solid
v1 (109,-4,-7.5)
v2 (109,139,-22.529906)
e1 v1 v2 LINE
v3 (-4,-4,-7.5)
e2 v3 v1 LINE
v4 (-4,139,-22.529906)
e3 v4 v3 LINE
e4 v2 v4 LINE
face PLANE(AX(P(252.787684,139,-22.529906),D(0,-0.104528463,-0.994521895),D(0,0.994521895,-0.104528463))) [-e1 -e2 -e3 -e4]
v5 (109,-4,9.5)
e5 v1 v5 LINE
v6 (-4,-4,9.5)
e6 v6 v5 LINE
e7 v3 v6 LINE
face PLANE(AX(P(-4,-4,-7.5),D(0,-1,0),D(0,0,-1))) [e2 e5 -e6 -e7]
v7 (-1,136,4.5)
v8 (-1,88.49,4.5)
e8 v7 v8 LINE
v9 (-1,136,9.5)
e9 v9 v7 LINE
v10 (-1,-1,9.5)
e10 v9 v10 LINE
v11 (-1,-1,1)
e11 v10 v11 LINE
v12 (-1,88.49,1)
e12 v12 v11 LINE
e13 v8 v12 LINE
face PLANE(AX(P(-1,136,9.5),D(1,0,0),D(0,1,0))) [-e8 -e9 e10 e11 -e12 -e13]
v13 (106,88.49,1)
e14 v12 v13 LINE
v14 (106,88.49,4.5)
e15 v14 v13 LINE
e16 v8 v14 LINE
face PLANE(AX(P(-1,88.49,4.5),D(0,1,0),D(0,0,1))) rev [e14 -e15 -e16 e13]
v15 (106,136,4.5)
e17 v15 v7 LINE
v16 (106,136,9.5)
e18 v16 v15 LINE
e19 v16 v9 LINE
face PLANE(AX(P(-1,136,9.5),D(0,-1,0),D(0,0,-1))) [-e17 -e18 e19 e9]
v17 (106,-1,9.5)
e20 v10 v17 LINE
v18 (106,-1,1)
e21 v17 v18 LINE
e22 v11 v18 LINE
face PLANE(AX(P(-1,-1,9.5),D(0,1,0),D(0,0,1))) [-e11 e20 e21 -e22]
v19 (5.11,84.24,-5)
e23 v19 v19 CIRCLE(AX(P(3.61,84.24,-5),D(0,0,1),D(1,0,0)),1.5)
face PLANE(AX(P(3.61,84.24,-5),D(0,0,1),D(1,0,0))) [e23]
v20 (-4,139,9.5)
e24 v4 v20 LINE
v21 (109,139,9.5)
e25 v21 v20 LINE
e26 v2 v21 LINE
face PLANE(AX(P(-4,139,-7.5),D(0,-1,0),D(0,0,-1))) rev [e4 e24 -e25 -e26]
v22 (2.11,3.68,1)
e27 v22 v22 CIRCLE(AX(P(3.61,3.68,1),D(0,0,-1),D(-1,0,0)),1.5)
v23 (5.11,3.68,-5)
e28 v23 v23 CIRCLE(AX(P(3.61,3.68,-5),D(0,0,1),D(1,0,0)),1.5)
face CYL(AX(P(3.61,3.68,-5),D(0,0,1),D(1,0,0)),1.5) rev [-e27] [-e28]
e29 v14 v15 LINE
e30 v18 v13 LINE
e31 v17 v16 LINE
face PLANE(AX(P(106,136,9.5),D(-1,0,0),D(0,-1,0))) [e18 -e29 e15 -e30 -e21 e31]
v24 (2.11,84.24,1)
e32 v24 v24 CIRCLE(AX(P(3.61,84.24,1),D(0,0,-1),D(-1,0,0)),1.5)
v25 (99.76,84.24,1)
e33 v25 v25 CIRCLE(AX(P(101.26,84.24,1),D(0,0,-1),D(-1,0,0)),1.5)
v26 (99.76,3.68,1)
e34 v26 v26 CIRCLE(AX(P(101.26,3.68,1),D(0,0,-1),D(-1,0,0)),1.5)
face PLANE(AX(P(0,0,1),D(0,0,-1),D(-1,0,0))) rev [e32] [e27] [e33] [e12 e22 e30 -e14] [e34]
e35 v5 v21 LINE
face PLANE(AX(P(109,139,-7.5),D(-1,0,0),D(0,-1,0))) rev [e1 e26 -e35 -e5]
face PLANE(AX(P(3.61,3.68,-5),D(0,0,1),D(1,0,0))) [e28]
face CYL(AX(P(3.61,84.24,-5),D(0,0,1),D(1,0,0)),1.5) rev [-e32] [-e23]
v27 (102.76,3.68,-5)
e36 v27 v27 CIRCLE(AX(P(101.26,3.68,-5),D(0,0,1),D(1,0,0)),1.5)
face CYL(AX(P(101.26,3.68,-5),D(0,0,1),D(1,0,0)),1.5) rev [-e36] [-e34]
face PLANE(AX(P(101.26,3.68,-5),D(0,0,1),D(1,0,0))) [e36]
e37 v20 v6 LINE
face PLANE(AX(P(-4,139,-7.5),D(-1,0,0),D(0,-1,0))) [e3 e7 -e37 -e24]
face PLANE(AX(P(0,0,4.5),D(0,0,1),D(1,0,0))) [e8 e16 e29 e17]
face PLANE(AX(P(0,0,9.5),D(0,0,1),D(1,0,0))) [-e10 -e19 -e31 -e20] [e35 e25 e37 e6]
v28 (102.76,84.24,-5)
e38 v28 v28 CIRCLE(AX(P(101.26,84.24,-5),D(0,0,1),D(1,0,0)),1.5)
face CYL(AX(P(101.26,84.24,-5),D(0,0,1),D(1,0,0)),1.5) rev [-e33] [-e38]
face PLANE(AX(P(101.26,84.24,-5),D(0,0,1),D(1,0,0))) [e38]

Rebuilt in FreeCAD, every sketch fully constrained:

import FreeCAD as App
import Part
import Sketcher
Q = App.Units.Quantity

doc = App.newDocument("Part")
params = doc.addObject("Spreadsheet::Sheet", "Params")
for row, (alias, value) in enumerate([
    ("sketch1_diameter", "3 mm"),
    ("sketch1_width", "105 mm"),
    ("sketch1_height", "135 mm"),
    ("pad1_length", "1 mm"),
    ("sketch2_width", "113 mm"),
    ("sketch2_width2", "107 mm"),
    ("sketch2_height", "143 mm"),
    ("sketch2_height2", "137 mm"),
    ("pad2_length", "8.5 mm"),
    ("sketch3_width", "113 mm"),
    ("sketch3_height", "143 mm"),
    ("pad3_length", "8.5 mm"),
    ("sketch4_diameter", "3 mm"),
    ("pocket1_length", "6 mm"),
    ("pocket1_length2", "5 mm"),
    ("sketch5_width", "107 mm"),
    ("sketch5_height", "47.51 mm"),
    ("pad4_length", "3.5 mm"),
    ("sketch6_width", "143 mm"),
    ("pad5_length", "113 mm"),
], start=1):
    params.set(f"A{row}", alias)
    params.set(f"B{row}", "=" + value)
    params.setAlias(f"B{row}", alias)

body = doc.addObject("PartDesign::Body", "Body")

# Sketch on XY plane
sketch1 = body.newObject("Sketcher::SketchObject", "Sketch")
sketch1.AttachmentSupport = (doc.getObject("XY_Plane"), [""])
sketch1.MapMode = "FlatFace"
sketch1.addGeometry(Part.LineSegment(App.Vector(0, 135, 0), App.Vector(0, 0, 0)), False)
sketch1.addGeometry(Part.LineSegment(App.Vector(0, 0, 0), App.Vector(105, 0, 0)), False)
sketch1.addGeometry(Part.LineSegment(App.Vector(105, 0, 0), App.Vector(105, 135, 0)), False)
sketch1.addGeometry(Part.LineSegment(App.Vector(105, 135, 0), App.Vector(0, 135, 0)), False)
sketch1.addGeometry(Part.Circle(App.Vector(3.6, 3.7, 0), App.Vector(0, 0, 1), 1.5), False)
sketch1.addGeometry(Part.Circle(App.Vector(101.3, 3.7, 0), App.Vector(0, 0, 1), 1.5), False)
sketch1.addGeometry(Part.Circle(App.Vector(3.6, 84.2, 0), App.Vector(0, 0, 1), 1.5), False)
sketch1.addGeometry(Part.Circle(App.Vector(101.3, 84.2, 0), App.Vector(0, 0, 1), 1.5), False)
sketch1.addConstraint(Sketcher.Constraint("Coincident", 0, 2, 1, 1))
sketch1.addConstraint(Sketcher.Constraint("Coincident", 1, 2, 2, 1))
sketch1.addConstraint(Sketcher.Constraint("Coincident", 2, 2, 3, 1))
sketch1.addConstraint(Sketcher.Constraint("Coincident", 3, 2, 0, 1))
sketch1.addConstraint(Sketcher.Constraint("Vertical", 0))
sketch1.addConstraint(Sketcher.Constraint("Horizontal", 1))
sketch1.addConstraint(Sketcher.Constraint("Vertical", 2))
sketch1.addConstraint(Sketcher.Constraint("Horizontal", 3))
sketch1.addConstraint(Sketcher.Constraint("Coincident", 0, 2, -1, 1))
sketch1.addConstraint(Sketcher.Constraint("Equal", 4, 5))
sketch1.addConstraint(Sketcher.Constraint("Equal", 5, 6))
sketch1.addConstraint(Sketcher.Constraint("Equal", 6, 7))
sketch1.addConstraint(Sketcher.Constraint("Horizontal", 4, 3, 5, 3))
sketch1.addConstraint(Sketcher.Constraint("Horizontal", 6, 3, 7, 3))
sketch1.addConstraint(Sketcher.Constraint("Vertical", 4, 3, 6, 3))
sketch1.addConstraint(Sketcher.Constraint("Vertical", 5, 3, 7, 3))
sketch1.addConstraint(Sketcher.Constraint("Diameter", 4, Q("3 mm")))
sketch1.addConstraint(Sketcher.Constraint("DistanceX", 1, 1, 1, 2, Q("105 mm")))
sketch1.addConstraint(Sketcher.Constraint("DistanceY", 0, 2, 0, 1, Q("135 mm")))
sketch1.addConstraint(Sketcher.Constraint("DistanceX", -1, 1, 4, 3, Q("3.61 mm")))
sketch1.addConstraint(Sketcher.Constraint("DistanceY", -1, 1, 4, 3, Q("3.68 mm")))
sketch1.addConstraint(Sketcher.Constraint("DistanceX", -1, 1, 5, 3, Q("101.26 mm")))
sketch1.addConstraint(Sketcher.Constraint("DistanceY", -1, 1, 6, 3, Q("84.24 mm")))
sketch1.setExpression("Constraints[16]", "Params.sketch1_diameter")
sketch1.setExpression("Constraints[17]", "Params.sketch1_width")
sketch1.setExpression("Constraints[18]", "Params.sketch1_height")
pad1 = body.newObject("PartDesign::Pad", "Pad")
pad1.Profile = sketch1
pad1.setExpression("Length", "Params.pad1_length")
body2 = doc.addObject("PartDesign::Body", "Body001")

# Sketch on XY plane
sketch2 = body2.newObject("Sketcher::SketchObject", "Sketch001")
sketch2.AttachmentSupport = (doc.getObject("XY_Plane001"), [""])
sketch2.MapMode = "FlatFace"
sketch2.AttachmentOffset = App.Placement(App.Vector(0, 0, 1), App.Rotation())
sketch2.addGeometry(Part.LineSegment(App.Vector(-4, 139, 0), App.Vector(-4, -4, 0)), False)
sketch2.addGeometry(Part.LineSegment(App.Vector(-4, -4, 0), App.Vector(109, -4, 0)), False)
sketch2.addGeometry(Part.LineSegment(App.Vector(109, -4, 0), App.Vector(109, 139, 0)), False)
sketch2.addGeometry(Part.LineSegment(App.Vector(109, 139, 0), App.Vector(-4, 139, 0)), False)
sketch2.addGeometry(Part.LineSegment(App.Vector(106, -1, 0), App.Vector(-1, -1, 0)), False)
sketch2.addGeometry(Part.LineSegment(App.Vector(-1, -1, 0), App.Vector(-1, 136, 0)), False)
sketch2.addGeometry(Part.LineSegment(App.Vector(-1, 136, 0), App.Vector(106, 136, 0)), False)
sketch2.addGeometry(Part.LineSegment(App.Vector(106, 136, 0), App.Vector(106, -1, 0)), False)
sketch2.addConstraint(Sketcher.Constraint("Coincident", 0, 2, 1, 1))
sketch2.addConstraint(Sketcher.Constraint("Coincident", 1, 2, 2, 1))
sketch2.addConstraint(Sketcher.Constraint("Coincident", 2, 2, 3, 1))
sketch2.addConstraint(Sketcher.Constraint("Coincident", 3, 2, 0, 1))
sketch2.addConstraint(Sketcher.Constraint("Coincident", 4, 2, 5, 1))
sketch2.addConstraint(Sketcher.Constraint("Coincident", 5, 2, 6, 1))
sketch2.addConstraint(Sketcher.Constraint("Coincident", 6, 2, 7, 1))
sketch2.addConstraint(Sketcher.Constraint("Coincident", 7, 2, 4, 1))
sketch2.addConstraint(Sketcher.Constraint("Vertical", 0))
sketch2.addConstraint(Sketcher.Constraint("Horizontal", 1))
sketch2.addConstraint(Sketcher.Constraint("Vertical", 2))
sketch2.addConstraint(Sketcher.Constraint("Horizontal", 3))
sketch2.addConstraint(Sketcher.Constraint("Horizontal", 4))
sketch2.addConstraint(Sketcher.Constraint("Vertical", 5))
sketch2.addConstraint(Sketcher.Constraint("Horizontal", 6))
sketch2.addConstraint(Sketcher.Constraint("Vertical", 7))
sketch2.addConstraint(Sketcher.Constraint("DistanceX", 1, 1, 1, 2, Q("113 mm")))
sketch2.addConstraint(Sketcher.Constraint("DistanceX", 4, 2, 4, 1, Q("107 mm")))
sketch2.addConstraint(Sketcher.Constraint("DistanceY", 0, 2, 0, 1, Q("143 mm")))
sketch2.addConstraint(Sketcher.Constraint("DistanceY", 5, 1, 5, 2, Q("137 mm")))
sketch2.addConstraint(Sketcher.Constraint("DistanceX", 0, 2, -1, 1, Q("4 mm")))
sketch2.addConstraint(Sketcher.Constraint("DistanceY", 0, 2, -1, 1, Q("4 mm")))
sketch2.addConstraint(Sketcher.Constraint("DistanceX", 4, 2, -1, 1, Q("1 mm")))
sketch2.addConstraint(Sketcher.Constraint("DistanceY", 4, 2, -1, 1, Q("1 mm")))
sketch2.setExpression("Constraints[16]", "Params.sketch2_width")
sketch2.setExpression("Constraints[17]", "Params.sketch2_width2")
sketch2.setExpression("Constraints[18]", "Params.sketch2_height")
sketch2.setExpression("Constraints[19]", "Params.sketch2_height2")
pad2 = body2.newObject("PartDesign::Pad", "Pad001")
pad2.Profile = sketch2
pad2.setExpression("Length", "Params.pad2_length")
body.AllowCompound = True
doc.recompute()

boolean = body.newObject("PartDesign::Boolean", "Boolean")
boolean.Type = "Fuse"
boolean.addObjects([body2])

# Sketch on XY plane
sketch3 = body.newObject("Sketcher::SketchObject", "Sketch002")
sketch3.AttachmentSupport = (doc.getObject("XY_Plane"), [""])
sketch3.MapMode = "FlatFace"
sketch3.AttachmentOffset = App.Placement(App.Vector(0, 0, 1), App.Rotation())
sketch3.addGeometry(Part.LineSegment(App.Vector(-4, 139, 0), App.Vector(-4, -4, 0)), False)
sketch3.addGeometry(Part.LineSegment(App.Vector(-4, -4, 0), App.Vector(109, -4, 0)), False)
sketch3.addGeometry(Part.LineSegment(App.Vector(109, -4, 0), App.Vector(109, 139, 0)), False)
sketch3.addGeometry(Part.LineSegment(App.Vector(109, 139, 0), App.Vector(-4, 139, 0)), False)
sketch3.addConstraint(Sketcher.Constraint("Coincident", 0, 2, 1, 1))
sketch3.addConstraint(Sketcher.Constraint("Coincident", 1, 2, 2, 1))
sketch3.addConstraint(Sketcher.Constraint("Coincident", 2, 2, 3, 1))
sketch3.addConstraint(Sketcher.Constraint("Coincident", 3, 2, 0, 1))
sketch3.addConstraint(Sketcher.Constraint("Vertical", 0))
sketch3.addConstraint(Sketcher.Constraint("Horizontal", 1))
sketch3.addConstraint(Sketcher.Constraint("Vertical", 2))
sketch3.addConstraint(Sketcher.Constraint("Horizontal", 3))
sketch3.addConstraint(Sketcher.Constraint("DistanceX", 1, 1, 1, 2, Q("113 mm")))
sketch3.addConstraint(Sketcher.Constraint("DistanceY", 0, 2, 0, 1, Q("143 mm")))
sketch3.addConstraint(Sketcher.Constraint("DistanceX", 0, 2, -1, 1, Q("4 mm")))
sketch3.addConstraint(Sketcher.Constraint("DistanceY", 0, 2, -1, 1, Q("4 mm")))
sketch3.setExpression("Constraints[8]", "Params.sketch3_width")
sketch3.setExpression("Constraints[9]", "Params.sketch3_height")
pad3 = body.newObject("PartDesign::Pad", "Pad002")
pad3.Profile = sketch3
pad3.setExpression("Length", "Params.pad3_length")
pad3.Reversed = True

# Sketch on XY plane
sketch4 = body.newObject("Sketcher::SketchObject", "Sketch003")
sketch4.AttachmentSupport = (doc.getObject("XY_Plane"), [""])
sketch4.MapMode = "FlatFace"
sketch4.addGeometry(Part.Circle(App.Vector(3.6, 3.7, 0), App.Vector(0, 0, 1), 1.5), False)
sketch4.addGeometry(Part.Circle(App.Vector(101.3, 3.7, 0), App.Vector(0, 0, 1), 1.5), False)
sketch4.addGeometry(Part.Circle(App.Vector(3.6, 84.2, 0), App.Vector(0, 0, 1), 1.5), False)
sketch4.addGeometry(Part.Circle(App.Vector(101.3, 84.2, 0), App.Vector(0, 0, 1), 1.5), False)
sketch4.addConstraint(Sketcher.Constraint("Equal", 0, 1))
sketch4.addConstraint(Sketcher.Constraint("Equal", 1, 2))
sketch4.addConstraint(Sketcher.Constraint("Equal", 2, 3))
sketch4.addConstraint(Sketcher.Constraint("Horizontal", 0, 3, 1, 3))
sketch4.addConstraint(Sketcher.Constraint("Horizontal", 2, 3, 3, 3))
sketch4.addConstraint(Sketcher.Constraint("Vertical", 0, 3, 2, 3))
sketch4.addConstraint(Sketcher.Constraint("Vertical", 1, 3, 3, 3))
sketch4.addConstraint(Sketcher.Constraint("Diameter", 0, Q("3 mm")))
sketch4.addConstraint(Sketcher.Constraint("DistanceX", -1, 1, 0, 3, Q("3.61 mm")))
sketch4.addConstraint(Sketcher.Constraint("DistanceY", -1, 1, 0, 3, Q("3.68 mm")))
sketch4.addConstraint(Sketcher.Constraint("DistanceX", -1, 1, 1, 3, Q("101.26 mm")))
sketch4.addConstraint(Sketcher.Constraint("DistanceY", -1, 1, 2, 3, Q("84.24 mm")))
sketch4.setExpression("Constraints[7]", "Params.sketch4_diameter")
pocket1 = body.newObject("PartDesign::Pocket", "Pocket")
pocket1.Profile = sketch4
pocket1.Type = "TwoLengths"
pocket1.setExpression("Length", "Params.pocket1_length")
pocket1.setExpression("Length2", "Params.pocket1_length2")
pocket1.Reversed = True

# Sketch on XY plane
sketch5 = body.newObject("Sketcher::SketchObject", "Sketch004")
sketch5.AttachmentSupport = (doc.getObject("XY_Plane"), [""])
sketch5.MapMode = "FlatFace"
sketch5.AttachmentOffset = App.Placement(App.Vector(0, 0, 1), App.Rotation())
sketch5.addGeometry(Part.LineSegment(App.Vector(-1, 136, 0), App.Vector(-1, 88, 0)), False)
sketch5.addGeometry(Part.LineSegment(App.Vector(-1, 88, 0), App.Vector(106, 88, 0)), False)
sketch5.addGeometry(Part.LineSegment(App.Vector(106, 88, 0), App.Vector(106, 136, 0)), False)
sketch5.addGeometry(Part.LineSegment(App.Vector(106, 136, 0), App.Vector(-1, 136, 0)), False)
sketch5.addConstraint(Sketcher.Constraint("Coincident", 0, 2, 1, 1))
sketch5.addConstraint(Sketcher.Constraint("Coincident", 1, 2, 2, 1))
sketch5.addConstraint(Sketcher.Constraint("Coincident", 2, 2, 3, 1))
sketch5.addConstraint(Sketcher.Constraint("Coincident", 3, 2, 0, 1))
sketch5.addConstraint(Sketcher.Constraint("Vertical", 0))
sketch5.addConstraint(Sketcher.Constraint("Horizontal", 1))
sketch5.addConstraint(Sketcher.Constraint("Vertical", 2))
sketch5.addConstraint(Sketcher.Constraint("Horizontal", 3))
sketch5.addConstraint(Sketcher.Constraint("DistanceX", 1, 1, 1, 2, Q("107 mm")))
sketch5.addConstraint(Sketcher.Constraint("DistanceX", 0, 2, -1, 1, Q("1 mm")))
sketch5.addConstraint(Sketcher.Constraint("DistanceY", -1, 1, 2, 2, Q("136 mm")))
sketch5.addConstraint(Sketcher.Constraint("DistanceY", 0, 2, 0, 1, Q("47.51 mm")))
sketch5.setExpression("Constraints[8]", "Params.sketch5_width")
sketch5.setExpression("Constraints[11]", "Params.sketch5_height")
pad4 = body.newObject("PartDesign::Pad", "Pad003")
pad4.Profile = sketch5
pad4.setExpression("Length", "Params.pad4_length")

# Sketch on YZ plane
sketch6 = body.newObject("Sketcher::SketchObject", "Sketch005")
sketch6.AttachmentSupport = (doc.getObject("YZ_Plane"), [""])
sketch6.MapMode = "FlatFace"
sketch6.AttachmentOffset = App.Placement(App.Vector(0, 0, -4), App.Rotation())
sketch6.addGeometry(Part.LineSegment(App.Vector(139, -8, 0), App.Vector(139, -23, 0)), False)
sketch6.addGeometry(Part.LineSegment(App.Vector(139, -23, 0), App.Vector(-4, -8, 0)), False)
sketch6.addGeometry(Part.LineSegment(App.Vector(-4, -8, 0), App.Vector(139, -8, 0)), False)
sketch6.addConstraint(Sketcher.Constraint("Coincident", 0, 2, 1, 1))
sketch6.addConstraint(Sketcher.Constraint("Coincident", 1, 2, 2, 1))
sketch6.addConstraint(Sketcher.Constraint("Coincident", 2, 2, 0, 1))
sketch6.addConstraint(Sketcher.Constraint("Vertical", 0))
sketch6.addConstraint(Sketcher.Constraint("Horizontal", 2))
sketch6.addConstraint(Sketcher.Constraint("DistanceX", 2, 1, 2, 2, Q("143 mm")))
sketch6.addConstraint(Sketcher.Constraint("Angle", 1, Q("174 deg")))
sketch6.addConstraint(Sketcher.Constraint("DistanceX", -1, 1, 0, 2, Q("139 mm")))
sketch6.addConstraint(Sketcher.Constraint("DistanceY", 1, 2, -1, 1, Q("7.5 mm")))
sketch6.setExpression("Constraints[5]", "Params.sketch6_width")
pad5 = body.newObject("PartDesign::Pad", "Pad004")
pad5.Profile = sketch6
pad5.setExpression("Length", "Params.pad5_length")

doc.recompute()
